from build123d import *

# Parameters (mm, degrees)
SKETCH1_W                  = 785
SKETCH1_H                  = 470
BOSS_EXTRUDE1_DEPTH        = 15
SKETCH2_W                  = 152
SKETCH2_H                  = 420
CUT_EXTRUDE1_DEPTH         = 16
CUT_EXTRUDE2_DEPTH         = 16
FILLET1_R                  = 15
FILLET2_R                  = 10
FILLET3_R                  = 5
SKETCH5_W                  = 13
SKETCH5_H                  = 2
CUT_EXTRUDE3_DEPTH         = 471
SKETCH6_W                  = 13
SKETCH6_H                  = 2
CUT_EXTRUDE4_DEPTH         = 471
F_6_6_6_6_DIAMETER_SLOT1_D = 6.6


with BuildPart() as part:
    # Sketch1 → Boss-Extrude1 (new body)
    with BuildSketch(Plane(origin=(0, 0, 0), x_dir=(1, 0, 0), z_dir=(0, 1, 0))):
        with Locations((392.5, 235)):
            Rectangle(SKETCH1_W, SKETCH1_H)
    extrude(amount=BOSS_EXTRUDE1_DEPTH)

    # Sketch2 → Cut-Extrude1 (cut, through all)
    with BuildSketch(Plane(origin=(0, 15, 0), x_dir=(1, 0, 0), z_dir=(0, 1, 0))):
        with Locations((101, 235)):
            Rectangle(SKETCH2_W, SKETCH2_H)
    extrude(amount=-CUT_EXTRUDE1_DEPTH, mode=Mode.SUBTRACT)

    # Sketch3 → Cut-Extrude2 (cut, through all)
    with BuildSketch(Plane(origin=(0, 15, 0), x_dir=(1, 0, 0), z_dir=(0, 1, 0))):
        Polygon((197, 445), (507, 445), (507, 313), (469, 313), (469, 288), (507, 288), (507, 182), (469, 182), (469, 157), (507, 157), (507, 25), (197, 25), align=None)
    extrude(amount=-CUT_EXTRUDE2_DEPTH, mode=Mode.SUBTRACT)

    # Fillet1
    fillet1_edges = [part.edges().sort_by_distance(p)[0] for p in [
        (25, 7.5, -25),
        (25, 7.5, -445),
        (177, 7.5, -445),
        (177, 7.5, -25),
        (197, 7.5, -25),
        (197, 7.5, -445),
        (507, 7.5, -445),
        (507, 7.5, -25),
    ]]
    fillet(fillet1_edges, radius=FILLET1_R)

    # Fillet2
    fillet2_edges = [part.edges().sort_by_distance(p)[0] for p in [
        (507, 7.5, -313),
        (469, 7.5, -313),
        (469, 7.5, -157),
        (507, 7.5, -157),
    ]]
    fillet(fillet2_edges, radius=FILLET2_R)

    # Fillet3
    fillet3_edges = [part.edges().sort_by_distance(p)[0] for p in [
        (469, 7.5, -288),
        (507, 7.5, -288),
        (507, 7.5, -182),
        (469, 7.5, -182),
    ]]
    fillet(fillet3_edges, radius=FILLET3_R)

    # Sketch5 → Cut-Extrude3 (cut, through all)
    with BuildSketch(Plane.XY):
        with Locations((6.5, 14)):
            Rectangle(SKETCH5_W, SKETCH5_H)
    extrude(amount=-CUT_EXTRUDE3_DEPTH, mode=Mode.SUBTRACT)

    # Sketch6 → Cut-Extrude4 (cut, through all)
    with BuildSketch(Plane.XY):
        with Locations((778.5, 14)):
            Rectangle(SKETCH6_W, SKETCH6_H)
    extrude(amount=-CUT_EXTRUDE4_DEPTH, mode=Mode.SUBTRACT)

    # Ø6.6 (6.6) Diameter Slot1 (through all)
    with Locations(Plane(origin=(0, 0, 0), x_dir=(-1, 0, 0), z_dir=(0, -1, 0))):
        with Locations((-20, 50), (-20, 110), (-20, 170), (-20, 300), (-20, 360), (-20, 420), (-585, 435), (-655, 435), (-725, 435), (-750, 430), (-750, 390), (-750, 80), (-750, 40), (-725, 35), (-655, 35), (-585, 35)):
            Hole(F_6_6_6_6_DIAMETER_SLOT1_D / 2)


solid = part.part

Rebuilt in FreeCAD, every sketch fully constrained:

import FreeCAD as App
import Part
import Sketcher
from FreeCAD import Vector


def edges_at(feature, points):
    """Names of the edges that pass closest to the given points."""
    edges = feature.Shape.Edges
    near = lambda p: min(range(len(edges)), key=lambda i: edges[i].distToShape(Part.Vertex(*p))[0])
    return sorted({f"Edge{near(p) + 1}" for p in points})

doc = App.newDocument("Part")
body = doc.addObject("PartDesign::Body", "Body")

# Sketch on XZ plane
sketch1 = doc.addObject("Sketcher::SketchObject", "Sketch")
body.addObject(sketch1)
sketch1.AttachmentSupport = (doc.XZ_Plane, [""])
sketch1.MapMode = "FlatFace"
sketch1.addGeometry([
    Part.LineSegment(Vector(0, -470, 0), Vector(0, 0, 0)),
    Part.LineSegment(Vector(0, 0, 0), Vector(785, 0, 0)),
    Part.LineSegment(Vector(785, 0, 0), Vector(785, -470, 0)),
    Part.LineSegment(Vector(785, -470, 0), Vector(0, -470, 0)),
], False)
sketch1.addConstraint([
    Sketcher.Constraint("Coincident", 0, 2, 1, 1),
    Sketcher.Constraint("Coincident", 1, 2, 2, 1),
    Sketcher.Constraint("Coincident", 2, 2, 3, 1),
    Sketcher.Constraint("Coincident", 3, 2, 0, 1),
    Sketcher.Constraint("Vertical", 0),
    Sketcher.Constraint("Horizontal", 1),
    Sketcher.Constraint("Vertical", 2),
    Sketcher.Constraint("Horizontal", 3),
    Sketcher.Constraint("Coincident", 0, 2, -1, 1),
    Sketcher.Constraint("DistanceX", 1, 1, 1, 2, 785.0),
    Sketcher.Constraint("DistanceY", 0, 1, 0, 2, 470.0),
])
pad1 = doc.addObject("PartDesign::Pad", "Pad")
body.addObject(pad1)
pad1.Profile = sketch1
pad1.Length = 15
pad1.Reversed = True

# Sketch on XZ plane
sketch2 = doc.addObject("Sketcher::SketchObject", "Sketch001")
body.addObject(sketch2)
sketch2.AttachmentSupport = (doc.XZ_Plane, [""])
sketch2.MapMode = "FlatFace"
sketch2.AttachmentOffset = App.Placement(Vector(0, 0, -15), App.Rotation())
sketch2.addGeometry([
    Part.LineSegment(Vector(25, -445, 0), Vector(25, -25, 0)),
    Part.LineSegment(Vector(25, -25, 0), Vector(177, -25, 0)),
    Part.LineSegment(Vector(177, -25, 0), Vector(177, -445, 0)),
    Part.LineSegment(Vector(177, -445, 0), Vector(25, -445, 0)),
], False)
sketch2.addConstraint([
    Sketcher.Constraint("Coincident", 0, 2, 1, 1),
    Sketcher.Constraint("Coincident", 1, 2, 2, 1),
    Sketcher.Constraint("Coincident", 2, 2, 3, 1),
    Sketcher.Constraint("Coincident", 3, 2, 0, 1),
    Sketcher.Constraint("Vertical", 0),
    Sketcher.Constraint("Horizontal", 1),
    Sketcher.Constraint("Vertical", 2),
    Sketcher.Constraint("Horizontal", 3),
    Sketcher.Constraint("DistanceX", 1, 1, 1, 2, 152.0),
    Sketcher.Constraint("DistanceY", 0, 1, 0, 2, 420.0),
    Sketcher.Constraint("DistanceX", -1, 1, 0, 2, 25.0),
    Sketcher.Constraint("DistanceY", 0, 2, -1, 1, 25.0),
])
pocket1 = doc.addObject("PartDesign::Pocket", "Pocket")
body.addObject(pocket1)
pocket1.Profile = sketch2
pocket1.Type = "ThroughAll"
pocket1.Reversed = True

# Sketch on XZ plane
sketch3 = doc.addObject("Sketcher::SketchObject", "Sketch002")
body.addObject(sketch3)
sketch3.AttachmentSupport = (doc.XZ_Plane, [""])
sketch3.MapMode = "FlatFace"
sketch3.AttachmentOffset = App.Placement(Vector(0, 0, -15), App.Rotation())
sketch3.addGeometry([
    Part.LineSegment(Vector(507, -445, 0), Vector(197, -445, 0)),  # 0
    Part.LineSegment(Vector(197, -445, 0), Vector(197, -25, 0)),  # 1
    Part.LineSegment(Vector(197, -25, 0), Vector(507, -25, 0)),  # 2
    Part.LineSegment(Vector(507, -25, 0), Vector(507, -157, 0)),  # 3
    Part.LineSegment(Vector(507, -157, 0), Vector(469, -157, 0)),  # 4
    Part.LineSegment(Vector(469, -157, 0), Vector(469, -182, 0)),  # 5
    Part.LineSegment(Vector(469, -182, 0), Vector(507, -182, 0)),  # 6
    Part.LineSegment(Vector(507, -182, 0), Vector(507, -288, 0)),  # 7
    Part.LineSegment(Vector(507, -288, 0), Vector(469, -288, 0)),  # 8
    Part.LineSegment(Vector(469, -288, 0), Vector(469, -313, 0)),  # 9
    Part.LineSegment(Vector(469, -313, 0), Vector(507, -313, 0)),  # 10
    Part.LineSegment(Vector(507, -313, 0), Vector(507, -445, 0)),  # 11
], False)
sketch3.addConstraint([
    Sketcher.Constraint("Coincident", 0, 2, 1, 1),
    Sketcher.Constraint("Coincident", 1, 2, 2, 1),
    Sketcher.Constraint("Coincident", 2, 2, 3, 1),
    Sketcher.Constraint("Coincident", 3, 2, 4, 1),
    Sketcher.Constraint("Coincident", 4, 2, 5, 1),
    Sketcher.Constraint("Coincident", 5, 2, 6, 1),
    Sketcher.Constraint("Coincident", 6, 2, 7, 1),
    Sketcher.Constraint("Coincident", 7, 2, 8, 1),
    Sketcher.Constraint("Coincident", 8, 2, 9, 1),
    Sketcher.Constraint("Coincident", 9, 2, 10, 1),
    Sketcher.Constraint("Coincident", 10, 2, 11, 1),
    Sketcher.Constraint("Coincident", 11, 2, 0, 1),
    Sketcher.Constraint("Horizontal", 0),
    Sketcher.Constraint("Vertical", 1),
    Sketcher.Constraint("Horizontal", 2),
    Sketcher.Constraint("Vertical", 3),
    Sketcher.Constraint("Horizontal", 4),
    Sketcher.Constraint("Vertical", 5),
    Sketcher.Constraint("Horizontal", 6),
    Sketcher.Constraint("Vertical", 7),
    Sketcher.Constraint("Horizontal", 8),
    Sketcher.Constraint("Vertical", 9),
    Sketcher.Constraint("Horizontal", 10),
    Sketcher.Constraint("Vertical", 11),
    Sketcher.Constraint("Vertical", 3, 2, 6, 2),
    Sketcher.Constraint("Vertical", 5, 2, 8, 2),
    Sketcher.Constraint("Vertical", 7, 2, 10, 2),
    Sketcher.Constraint("Equal", 5, 9),
    Sketcher.Constraint("Equal", 3, 11),
    Sketcher.Constraint("DistanceX", 0, 2, 0, 1, 310.0),
    Sketcher.Constraint("DistanceX", 4, 2, 4, 1, 38.0),
    Sketcher.Constraint("DistanceY", 1, 1, 1, 2, 420.0),
    Sketcher.Constraint("DistanceY", 3, 2, 3, 1, 132.0),
    Sketcher.Constraint("DistanceY", 5, 2, 5, 1, 25.0),
    Sketcher.Constraint("DistanceX", -1, 1, 0, 2, 197.0),
    Sketcher.Constraint("DistanceY", 0, 2, -1, 1, 445.0),
])
pocket2 = doc.addObject("PartDesign::Pocket", "Pocket001")
body.addObject(pocket2)
pocket2.Profile = sketch3
pocket2.Type = "ThroughAll"
pocket2.Reversed = True
doc.recompute()

fillet = doc.addObject("PartDesign::Fillet", "Fillet")
body.addObject(fillet)
fillet.Base = (pocket2, edges_at(pocket2, [
    (25, 7.5, -25),
    (25, 7.5, -445),
    (177, 7.5, -445),
    (177, 7.5, -25),
    (197, 7.5, -25),
    (197, 7.5, -445),
    (507, 7.5, -445),
    (507, 7.5, -25),
]))
fillet.Radius = 15
doc.recompute()

fillet2 = doc.addObject("PartDesign::Fillet", "Fillet001")
body.addObject(fillet2)
fillet2.Base = (fillet, edges_at(fillet, [
    (507, 7.5, -313),
    (469, 7.5, -313),
    (469, 7.5, -157),
    (507, 7.5, -157),
]))
fillet2.Radius = 10
doc.recompute()

fillet3 = doc.addObject("PartDesign::Fillet", "Fillet002")
body.addObject(fillet3)
fillet3.Base = (fillet2, edges_at(fillet2, [
    (469, 7.5, -288),
    (507, 7.5, -288),
    (507, 7.5, -182),
    (469, 7.5, -182),
]))
fillet3.Radius = 5

# Sketch on XY plane
sketch4 = doc.addObject("Sketcher::SketchObject", "Sketch003")
body.addObject(sketch4)
sketch4.AttachmentSupport = (doc.XY_Plane, [""])
sketch4.MapMode = "FlatFace"
sketch4.addGeometry([
    Part.LineSegment(Vector(0, 15, 0), Vector(0, 13, 0)),
    Part.LineSegment(Vector(0, 13, 0), Vector(13, 13, 0)),
    Part.LineSegment(Vector(13, 13, 0), Vector(13, 15, 0)),
    Part.LineSegment(Vector(13, 15, 0), Vector(0, 15, 0)),
], False)
sketch4.addConstraint([
    Sketcher.Constraint("Coincident", 0, 2, 1, 1),
    Sketcher.Constraint("Coincident", 1, 2, 2, 1),
    Sketcher.Constraint("Coincident", 2, 2, 3, 1),
    Sketcher.Constraint("Coincident", 3, 2, 0, 1),
    Sketcher.Constraint("Vertical", 0),
    Sketcher.Constraint("Horizontal", 1),
    Sketcher.Constraint("Vertical", 2),
    Sketcher.Constraint("Horizontal", 3),
    Sketcher.Constraint("PointOnObject", 0, 2, -2),
    Sketcher.Constraint("DistanceX", 1, 1, 1, 2, 13.0),
    Sketcher.Constraint("DistanceY", 0, 2, 0, 1, 2.0),
    Sketcher.Constraint("DistanceY", -1, 1, 0, 2, 13.0),
])
pocket3 = doc.addObject("PartDesign::Pocket", "Pocket002")
body.addObject(pocket3)
pocket3.Profile = sketch4
pocket3.Type = "ThroughAll"

# Sketch on XY plane
sketch5 = doc.addObject("Sketcher::SketchObject", "Sketch004")
body.addObject(sketch5)
sketch5.AttachmentSupport = (doc.XY_Plane, [""])
sketch5.MapMode = "FlatFace"
sketch5.addGeometry([
    Part.LineSegment(Vector(772, 15, 0), Vector(772, 13, 0)),
    Part.LineSegment(Vector(772, 13, 0), Vector(785, 13, 0)),
    Part.LineSegment(Vector(785, 13, 0), Vector(785, 15, 0)),
    Part.LineSegment(Vector(785, 15, 0), Vector(772, 15, 0)),
], False)
sketch5.addConstraint([
    Sketcher.Constraint("Coincident", 0, 2, 1, 1),
    Sketcher.Constraint("Coincident", 1, 2, 2, 1),
    Sketcher.Constraint("Coincident", 2, 2, 3, 1),
    Sketcher.Constraint("Coincident", 3, 2, 0, 1),
    Sketcher.Constraint("Vertical", 0),
    Sketcher.Constraint("Horizontal", 1),
    Sketcher.Constraint("Vertical", 2),
    Sketcher.Constraint("Horizontal", 3),
    Sketcher.Constraint("DistanceX", 1, 1, 1, 2, 13.0),
    Sketcher.Constraint("DistanceY", 0, 2, 0, 1, 2.0),
    Sketcher.Constraint("DistanceX", -1, 1, 0, 2, 772.0),
    Sketcher.Constraint("DistanceY", -1, 1, 0, 2, 13.0),
])
pocket4 = doc.addObject("PartDesign::Pocket", "Pocket003")
body.addObject(pocket4)
pocket4.Profile = sketch5
pocket4.Type = "ThroughAll"

# Sketch on XZ plane
sketch6 = doc.addObject("Sketcher::SketchObject", "Sketch005")
body.addObject(sketch6)
sketch6.AttachmentSupport = (doc.XZ_Plane, [""])
sketch6.MapMode = "FlatFace"
sketch6.addGeometry([
    Part.Circle(Vector(20, -50, 0), Vector(0, 0, 1), 3.3),  # 0
    Part.Circle(Vector(20, -110, 0), Vector(0, 0, 1), 3.3),  # 1
    Part.Circle(Vector(20, -170, 0), Vector(0, 0, 1), 3.3),  # 2
    Part.Circle(Vector(20, -300, 0), Vector(0, 0, 1), 3.3),  # 3
    Part.Circle(Vector(20, -360, 0), Vector(0, 0, 1), 3.3),  # 4
    Part.Circle(Vector(20, -420, 0), Vector(0, 0, 1), 3.3),  # 5
    Part.Circle(Vector(585, -435, 0), Vector(0, 0, 1), 3.3),  # 6
    Part.Circle(Vector(655, -435, 0), Vector(0, 0, 1), 3.3),  # 7
    Part.Circle(Vector(725, -435, 0), Vector(0, 0, 1), 3.3),  # 8
    Part.Circle(Vector(750, -430, 0), Vector(0, 0, 1), 3.3),  # 9
    Part.Circle(Vector(750, -390, 0), Vector(0, 0, 1), 3.3),  # 10
    Part.Circle(Vector(750, -80, 0), Vector(0, 0, 1), 3.3),  # 11
    Part.Circle(Vector(750, -40, 0), Vector(0, 0, 1), 3.3),  # 12
    Part.Circle(Vector(725, -35, 0), Vector(0, 0, 1), 3.3),  # 13
    Part.Circle(Vector(655, -35, 0), Vector(0, 0, 1), 3.3),  # 14
    Part.Circle(Vector(585, -35, 0), Vector(0, 0, 1), 3.3),  # 15
], False)
sketch6.addConstraint([
    Sketcher.Constraint("Equal", 0, 1),
    Sketcher.Constraint("Equal", 1, 2),
    Sketcher.Constraint("Equal", 2, 3),
    Sketcher.Constraint("Equal", 3, 4),
    Sketcher.Constraint("Equal", 4, 5),
    Sketcher.Constraint("Equal", 5, 6),
    Sketcher.Constraint("Equal", 6, 7),
    Sketcher.Constraint("Equal", 7, 8),
    Sketcher.Constraint("Equal", 8, 9),
    Sketcher.Constraint("Equal", 9, 10),
    Sketcher.Constraint("Equal", 10, 11),
    Sketcher.Constraint("Equal", 11, 12),
    Sketcher.Constraint("Equal", 12, 13),
    Sketcher.Constraint("Equal", 13, 14),
    Sketcher.Constraint("Equal", 14, 15),
    Sketcher.Constraint("Horizontal", 6, 3, 7, 3),
    Sketcher.Constraint("Horizontal", 7, 3, 8, 3),
    Sketcher.Constraint("Horizontal", 13, 3, 14, 3),
    Sketcher.Constraint("Horizontal", 14, 3, 15, 3),
    Sketcher.Constraint("Vertical", 0, 3, 1, 3),
    Sketcher.Constraint("Vertical", 1, 3, 2, 3),
    Sketcher.Constraint("Vertical", 2, 3, 3, 3),
    Sketcher.Constraint("Vertical", 3, 3, 4, 3),
    Sketcher.Constraint("Vertical", 4, 3, 5, 3),
    Sketcher.Constraint("Vertical", 9, 3, 10, 3),
    Sketcher.Constraint("Vertical", 10, 3, 11, 3),
    Sketcher.Constraint("Vertical", 11, 3, 12, 3),
    Sketcher.Constraint("Vertical", 8, 3, 13, 3),
    Sketcher.Constraint("Vertical", 7, 3, 14, 3),
    Sketcher.Constraint("Vertical", 6, 3, 15, 3),
    Sketcher.Constraint("Diameter", 0, 6.6),
    Sketcher.Constraint("DistanceX", -1, 1, 0, 3, 20.0),
    Sketcher.Constraint("DistanceY", 0, 3, -1, 1, 50.0),
    Sketcher.Constraint("DistanceY", 1, 3, -1, 1, 110.0),
    Sketcher.Constraint("DistanceY", 2, 3, -1, 1, 170.0),
    Sketcher.Constraint("DistanceY", 3, 3, -1, 1, 300.0),
    Sketcher.Constraint("DistanceY", 4, 3, -1, 1, 360.0),
    Sketcher.Constraint("DistanceY", 5, 3, -1, 1, 420.0),
    Sketcher.Constraint("DistanceX", -1, 1, 6, 3, 585.0),
    Sketcher.Constraint("DistanceY", 6, 3, -1, 1, 435.0),
    Sketcher.Constraint("DistanceX", -1, 1, 7, 3, 655.0),
    Sketcher.Constraint("DistanceX", -1, 1, 8, 3, 725.0),
    Sketcher.Constraint("DistanceX", -1, 1, 9, 3, 750.0),
    Sketcher.Constraint("DistanceY", 9, 3, -1, 1, 430.0),
    Sketcher.Constraint("DistanceY", 10, 3, -1, 1, 390.0),
    Sketcher.Constraint("DistanceY", 11, 3, -1, 1, 80.0),
    Sketcher.Constraint("DistanceY", 12, 3, -1, 1, 40.0),
    Sketcher.Constraint("DistanceY", 13, 3, -1, 1, 35.0),
])
doc.recompute()
hole = doc.addObject("PartDesign::Hole", "Hole")
body.addObject(hole)
hole.Profile = sketch6
hole.ThreadType = "None"
hole.Diameter = 6.6
hole.DepthType = "ThroughAll"

doc.recompute()
